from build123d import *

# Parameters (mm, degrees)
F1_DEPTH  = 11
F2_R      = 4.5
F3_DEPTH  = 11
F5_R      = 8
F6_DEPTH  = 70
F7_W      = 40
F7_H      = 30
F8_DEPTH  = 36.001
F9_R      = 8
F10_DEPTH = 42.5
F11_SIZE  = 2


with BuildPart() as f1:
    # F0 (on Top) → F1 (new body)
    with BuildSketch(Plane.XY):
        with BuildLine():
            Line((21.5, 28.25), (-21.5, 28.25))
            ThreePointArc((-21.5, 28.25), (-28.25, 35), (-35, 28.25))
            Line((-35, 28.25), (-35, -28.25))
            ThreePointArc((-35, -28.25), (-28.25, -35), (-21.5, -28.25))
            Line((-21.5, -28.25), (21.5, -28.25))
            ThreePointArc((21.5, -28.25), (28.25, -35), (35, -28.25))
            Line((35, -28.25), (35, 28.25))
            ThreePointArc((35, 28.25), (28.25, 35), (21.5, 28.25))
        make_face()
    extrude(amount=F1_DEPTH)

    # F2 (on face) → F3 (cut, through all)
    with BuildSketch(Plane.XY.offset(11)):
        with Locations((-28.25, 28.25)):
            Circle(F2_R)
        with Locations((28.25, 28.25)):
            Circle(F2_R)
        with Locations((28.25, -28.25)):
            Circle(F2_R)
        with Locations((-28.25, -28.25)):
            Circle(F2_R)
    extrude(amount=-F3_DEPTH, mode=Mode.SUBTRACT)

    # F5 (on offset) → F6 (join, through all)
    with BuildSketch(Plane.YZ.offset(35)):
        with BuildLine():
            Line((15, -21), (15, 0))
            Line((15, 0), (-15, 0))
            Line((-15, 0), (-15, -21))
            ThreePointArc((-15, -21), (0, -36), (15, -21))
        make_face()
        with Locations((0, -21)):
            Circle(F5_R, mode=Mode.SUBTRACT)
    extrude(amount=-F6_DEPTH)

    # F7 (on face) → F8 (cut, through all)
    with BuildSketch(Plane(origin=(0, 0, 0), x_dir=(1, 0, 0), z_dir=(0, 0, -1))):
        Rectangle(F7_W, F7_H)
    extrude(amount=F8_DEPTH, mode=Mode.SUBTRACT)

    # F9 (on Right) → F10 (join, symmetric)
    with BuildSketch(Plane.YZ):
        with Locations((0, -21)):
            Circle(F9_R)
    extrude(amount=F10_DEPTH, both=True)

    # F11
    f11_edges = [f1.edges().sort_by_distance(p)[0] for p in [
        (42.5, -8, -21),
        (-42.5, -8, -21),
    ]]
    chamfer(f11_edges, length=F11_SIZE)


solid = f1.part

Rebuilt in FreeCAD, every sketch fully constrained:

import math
import FreeCAD as App
import Part
import Sketcher


def edges_at(feature, points):
    """Names of the edges that pass closest to the given points."""
    edges = feature.Shape.Edges
    near = lambda p: min(range(len(edges)), key=lambda i: edges[i].distToShape(Part.Vertex(*p))[0])
    return sorted({f"Edge{near(p) + 1}" for p in points})

doc = App.newDocument("Part")
body = doc.addObject("PartDesign::Body", "Body")

# Sketch on XY plane
sketch1 = body.newObject("Sketcher::SketchObject", "Sketch")
sketch1.AttachmentSupport = (doc.getObject("XY_Plane"), [""])
sketch1.MapMode = "FlatFace"
sketch1.addGeometry(Part.LineSegment(App.Vector(21.5, 28.25, 0), App.Vector(-21.5, 28.25, 0)), False)
sketch1.addGeometry(Part.ArcOfCircle(Part.Circle(App.Vector(-28.25, 28.25, 0), App.Vector(0, 0, 1), 6.75), math.radians(0), math.radians(180)), False)
sketch1.addGeometry(Part.LineSegment(App.Vector(-35, 28.25, 0), App.Vector(-35, -28.25, 0)), False)
sketch1.addGeometry(Part.ArcOfCircle(Part.Circle(App.Vector(-28.25, -28.25, 0), App.Vector(0, 0, 1), 6.75), math.radians(180), math.radians(360)), False)
sketch1.addGeometry(Part.LineSegment(App.Vector(-21.5, -28.25, 0), App.Vector(21.5, -28.25, 0)), False)
sketch1.addGeometry(Part.ArcOfCircle(Part.Circle(App.Vector(28.25, -28.25, 0), App.Vector(0, 0, 1), 6.75), math.radians(180), math.radians(360)), False)
sketch1.addGeometry(Part.LineSegment(App.Vector(35, -28.25, 0), App.Vector(35, 28.25, 0)), False)
sketch1.addGeometry(Part.ArcOfCircle(Part.Circle(App.Vector(28.25, 28.25, 0), App.Vector(0, 0, 1), 6.75), math.radians(0), math.radians(180)), False)
sketch1.addConstraint(Sketcher.Constraint("Coincident", 0, 2, 1, 1))
sketch1.addConstraint(Sketcher.Constraint("Tangent", 1, 2, 2, 1))
sketch1.addConstraint(Sketcher.Constraint("Tangent", 2, 2, 3, 1))
sketch1.addConstraint(Sketcher.Constraint("Coincident", 3, 2, 4, 1))
sketch1.addConstraint(Sketcher.Constraint("Coincident", 4, 2, 5, 1))
sketch1.addConstraint(Sketcher.Constraint("Tangent", 5, 2, 6, 1))
sketch1.addConstraint(Sketcher.Constraint("Tangent", 6, 2, 7, 1))
sketch1.addConstraint(Sketcher.Constraint("Coincident", 7, 2, 0, 1))
sketch1.addConstraint(Sketcher.Constraint("Horizontal", 0))
sketch1.addConstraint(Sketcher.Constraint("Vertical", 2))
sketch1.addConstraint(Sketcher.Constraint("Horizontal", 4))
sketch1.addConstraint(Sketcher.Constraint("Vertical", 6))
sketch1.addConstraint(Sketcher.Constraint("Equal", 1, 3))
sketch1.addConstraint(Sketcher.Constraint("Equal", 3, 5))
sketch1.addConstraint(Sketcher.Constraint("Equal", 5, 7))
sketch1.addConstraint(Sketcher.Constraint("Symmetric", 1, 3, 5, 3, -1, 1))
sketch1.addConstraint(Sketcher.Constraint("Horizontal", 3, 3, 5, 3))
sketch1.addConstraint(Sketcher.Constraint("Horizontal", 1, 3, 7, 3))
sketch1.addConstraint(Sketcher.Constraint("Horizontal", 7, 3, 0, 2))
sketch1.addConstraint(Sketcher.Constraint("Horizontal", 2, 2, 3, 2))
sketch1.addConstraint(Sketcher.Constraint("DistanceX", 0, 2, 0, 1, 43.0))
sketch1.addConstraint(Sketcher.Constraint("Radius", 1, 6.75))
sketch1.addConstraint(Sketcher.Constraint("DistanceY", 2, 2, 2, 1, 56.5))
pad1 = body.newObject("PartDesign::Pad", "Pad")
pad1.Profile = sketch1
pad1.Length = 11

# Sketch on XY plane
sketch2 = body.newObject("Sketcher::SketchObject", "Sketch001")
sketch2.AttachmentSupport = (doc.getObject("XY_Plane"), [""])
sketch2.MapMode = "FlatFace"
sketch2.AttachmentOffset = App.Placement(App.Vector(0, 0, 11), App.Rotation())
sketch2.addGeometry(Part.Circle(App.Vector(-28.25, 28.25, 0), App.Vector(0, 0, 1), 4.5), False)
sketch2.addGeometry(Part.Circle(App.Vector(28.25, 28.25, 0), App.Vector(0, 0, 1), 4.5), False)
sketch2.addGeometry(Part.Circle(App.Vector(28.25, -28.25, 0), App.Vector(0, 0, 1), 4.5), False)
sketch2.addGeometry(Part.Circle(App.Vector(-28.25, -28.25, 0), App.Vector(0, 0, 1), 4.5), False)
sketch2.addConstraint(Sketcher.Constraint("Equal", 0, 1))
sketch2.addConstraint(Sketcher.Constraint("Equal", 1, 2))
sketch2.addConstraint(Sketcher.Constraint("Equal", 2, 3))
sketch2.addConstraint(Sketcher.Constraint("Symmetric", 0, 3, 2, 3, -1, 1))
sketch2.addConstraint(Sketcher.Constraint("Symmetric", 1, 3, 3, 3, -1, 1))
sketch2.addConstraint(Sketcher.Constraint("Symmetric", 0, 3, 1, 3, -2))
sketch2.addConstraint(Sketcher.Constraint("Diameter", 0, 9.0))
sketch2.addConstraint(Sketcher.Constraint("DistanceX", 0, 3, 1, 3, 56.5))
sketch2.addConstraint(Sketcher.Constraint("DistanceY", 2, 3, 1, 3, 56.5))
pocket1 = body.newObject("PartDesign::Pocket", "Pocket")
pocket1.Profile = sketch2
pocket1.Type = "ThroughAll"

# Sketch on YZ plane
sketch3 = body.newObject("Sketcher::SketchObject", "Sketch002")
sketch3.AttachmentSupport = (doc.getObject("YZ_Plane"), [""])
sketch3.MapMode = "FlatFace"
sketch3.AttachmentOffset = App.Placement(App.Vector(0, 0, 35), App.Rotation())
sketch3.addGeometry(Part.LineSegment(App.Vector(15, -21, 0), App.Vector(15, 0, 0)), False)
sketch3.addGeometry(Part.LineSegment(App.Vector(15, 0, 0), App.Vector(-15, 0, 0)), False)
sketch3.addGeometry(Part.LineSegment(App.Vector(-15, 0, 0), App.Vector(-15, -21, 0)), False)
sketch3.addGeometry(Part.ArcOfCircle(Part.Circle(App.Vector(0, -21, 0), App.Vector(0, 0, 1), 15), math.radians(180), math.radians(360)), False)
sketch3.addGeometry(Part.Circle(App.Vector(0, -21, 0), App.Vector(0, 0, 1), 8), False)
sketch3.addConstraint(Sketcher.Constraint("Coincident", 0, 2, 1, 1))
sketch3.addConstraint(Sketcher.Constraint("Coincident", 1, 2, 2, 1))
sketch3.addConstraint(Sketcher.Constraint("Tangent", 2, 2, 3, 1))
sketch3.addConstraint(Sketcher.Constraint("Tangent", 3, 2, 0, 1))
sketch3.addConstraint(Sketcher.Constraint("Vertical", 0))
sketch3.addConstraint(Sketcher.Constraint("Horizontal", 1))
sketch3.addConstraint(Sketcher.Constraint("Vertical", 2))
sketch3.addConstraint(Sketcher.Constraint("Coincident", 4, 3, 3, 3))
sketch3.addConstraint(Sketcher.Constraint("Symmetric", 0, 2, 1, 2, -1, 1))
sketch3.addConstraint(Sketcher.Constraint("Diameter", 4, 16.0))
sketch3.addConstraint(Sketcher.Constraint("Radius", 3, 15.0))
sketch3.addConstraint(Sketcher.Constraint("DistanceY", 0, 1, 0, 2, 21.0))
pad2 = body.newObject("PartDesign::Pad", "Pad001")
pad2.Profile = sketch3
pad2.Length = 70
pad2.Reversed = True

# Sketch on XY plane
sketch4 = body.newObject("Sketcher::SketchObject", "Sketch003")
sketch4.AttachmentSupport = (doc.getObject("XY_Plane"), [""])
sketch4.MapMode = "FlatFace"
sketch4.addGeometry(Part.LineSegment(App.Vector(-20, -15, 0), App.Vector(-20, 15, 0)), False)
sketch4.addGeometry(Part.LineSegment(App.Vector(-20, 15, 0), App.Vector(20, 15, 0)), False)
sketch4.addGeometry(Part.LineSegment(App.Vector(20, 15, 0), App.Vector(20, -15, 0)), False)
sketch4.addGeometry(Part.LineSegment(App.Vector(20, -15, 0), App.Vector(-20, -15, 0)), False)
sketch4.addConstraint(Sketcher.Constraint("Coincident", 0, 2, 1, 1))
sketch4.addConstraint(Sketcher.Constraint("Coincident", 1, 2, 2, 1))
sketch4.addConstraint(Sketcher.Constraint("Coincident", 2, 2, 3, 1))
sketch4.addConstraint(Sketcher.Constraint("Coincident", 3, 2, 0, 1))
sketch4.addConstraint(Sketcher.Constraint("Vertical", 0))
sketch4.addConstraint(Sketcher.Constraint("Horizontal", 1))
sketch4.addConstraint(Sketcher.Constraint("Vertical", 2))
sketch4.addConstraint(Sketcher.Constraint("Horizontal", 3))
sketch4.addConstraint(Sketcher.Constraint("Symmetric", 0, 2, 2, 2, -1, 1))
sketch4.addConstraint(Sketcher.Constraint("DistanceX", 1, 1, 1, 2, 40.0))
sketch4.addConstraint(Sketcher.Constraint("DistanceY", 0, 1, 0, 2, 30.0))
pocket2 = body.newObject("PartDesign::Pocket", "Pocket001")
pocket2.Profile = sketch4
pocket2.Type = "ThroughAll"

# Sketch on YZ plane
sketch5 = body.newObject("Sketcher::SketchObject", "Sketch004")
sketch5.AttachmentSupport = (doc.getObject("YZ_Plane"), [""])
sketch5.MapMode = "FlatFace"
sketch5.addGeometry(Part.Circle(App.Vector(0, -21, 0), App.Vector(0, 0, 1), 8), False)
sketch5.addConstraint(Sketcher.Constraint("PointOnObject", 0, 3, -2))
sketch5.addConstraint(Sketcher.Constraint("Diameter", 0, 16.0))
sketch5.addConstraint(Sketcher.Constraint("DistanceY", 0, 3, -1, 1, 21.0))
pad3 = body.newObject("PartDesign::Pad", "Pad002")
pad3.Profile = sketch5
pad3.Length = 85
pad3.Midplane = True
doc.recompute()

chamfer = body.newObject("PartDesign::Chamfer", "Chamfer")
chamfer.Base = (pad3, edges_at(pad3, [(42.5, -8, -21), (-42.5, -8, -21)]))
chamfer.Size = 2

doc.recompute()
